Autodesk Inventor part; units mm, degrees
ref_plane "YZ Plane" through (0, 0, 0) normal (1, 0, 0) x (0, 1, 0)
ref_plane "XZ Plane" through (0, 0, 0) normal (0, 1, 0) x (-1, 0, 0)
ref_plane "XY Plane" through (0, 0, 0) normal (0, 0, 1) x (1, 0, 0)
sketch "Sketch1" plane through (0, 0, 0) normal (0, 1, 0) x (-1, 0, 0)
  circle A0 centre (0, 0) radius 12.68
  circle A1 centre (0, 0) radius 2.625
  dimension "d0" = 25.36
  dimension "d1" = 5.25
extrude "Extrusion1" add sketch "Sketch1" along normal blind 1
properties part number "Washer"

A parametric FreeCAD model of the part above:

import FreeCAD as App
import Part
import Sketcher

doc = App.newDocument("Part")
body = doc.addObject("PartDesign::Body", "Body")

# Sketch on XZ plane
sketch1 = doc.addObject("Sketcher::SketchObject", "Sketch")
body.addObject(sketch1)
sketch1.AttachmentSupport = (doc.XZ_Plane, [""])
sketch1.MapMode = "FlatFace"
sketch1.addGeometry(Part.Circle(App.Vector(0, 0, 0), App.Vector(0, 0, 1), 12.68), False)
sketch1.addGeometry(Part.Circle(App.Vector(0, 0, 0), App.Vector(0, 0, 1), 2.625), False)
sketch1.addConstraint(Sketcher.Constraint("Coincident", 0, 3, -1, 1))
sketch1.addConstraint(Sketcher.Constraint("Coincident", 1, 3, -1, 1))
sketch1.addConstraint(Sketcher.Constraint("Diameter", 0, 25.36))
sketch1.addConstraint(Sketcher.Constraint("Diameter", 1, 5.25))
pad1 = doc.addObject("PartDesign::Pad", "Pad")
body.addObject(pad1)
pad1.Profile = sketch1
pad1.Length = 1
pad1.Reversed = True

doc.recompute()
